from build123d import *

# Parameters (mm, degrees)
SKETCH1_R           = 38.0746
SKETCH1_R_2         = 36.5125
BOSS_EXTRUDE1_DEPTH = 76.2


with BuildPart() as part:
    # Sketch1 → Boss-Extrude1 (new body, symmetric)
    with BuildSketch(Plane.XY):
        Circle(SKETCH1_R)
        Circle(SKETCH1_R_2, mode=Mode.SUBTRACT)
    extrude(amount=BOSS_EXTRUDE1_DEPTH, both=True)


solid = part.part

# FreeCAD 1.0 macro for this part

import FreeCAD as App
import Part
import Sketcher
Q = App.Units.Quantity

doc = App.newDocument("Part")
params = doc.addObject("Spreadsheet::Sheet", "Params")
for row, (alias, value) in enumerate([
    ("sketch1_diameter", "2.998 in"),
    ("sketch1_diameter2", "2.875 in"),
    ("pad1_length", "6 in"),
], start=1):
    params.set(f"A{row}", alias)
    params.set(f"B{row}", "=" + value)
    params.setAlias(f"B{row}", alias)

body = doc.addObject("PartDesign::Body", "Body")

# Sketch on XY plane
sketch1 = body.newObject("Sketcher::SketchObject", "Sketch")
sketch1.AttachmentSupport = (doc.getObject("XY_Plane"), [""])
sketch1.MapMode = "FlatFace"
sketch1.addGeometry([
    Part.Circle(App.Vector(0, 0, 0), App.Vector(0, 0, 1), 38.0746),
    Part.Circle(App.Vector(0, 0, 0), App.Vector(0, 0, 1), 36.5125),
], False)
sketch1.addConstraint([
    Sketcher.Constraint("Coincident", 0, 3, -1, 1),
    Sketcher.Constraint("Coincident", 1, 3, -1, 1),
    Sketcher.Constraint("Diameter", 0, Q("2.998 in")),
    Sketcher.Constraint("Diameter", 1, Q("2.875 in")),
])
sketch1.setExpression("Constraints[2]", "Params.sketch1_diameter")
sketch1.setExpression("Constraints[3]", "Params.sketch1_diameter2")
pad1 = body.newObject("PartDesign::Pad", "Pad")
pad1.Profile = sketch1
pad1.setExpression("Length", "Params.pad1_length")
pad1.Midplane = True

doc.recompute()
